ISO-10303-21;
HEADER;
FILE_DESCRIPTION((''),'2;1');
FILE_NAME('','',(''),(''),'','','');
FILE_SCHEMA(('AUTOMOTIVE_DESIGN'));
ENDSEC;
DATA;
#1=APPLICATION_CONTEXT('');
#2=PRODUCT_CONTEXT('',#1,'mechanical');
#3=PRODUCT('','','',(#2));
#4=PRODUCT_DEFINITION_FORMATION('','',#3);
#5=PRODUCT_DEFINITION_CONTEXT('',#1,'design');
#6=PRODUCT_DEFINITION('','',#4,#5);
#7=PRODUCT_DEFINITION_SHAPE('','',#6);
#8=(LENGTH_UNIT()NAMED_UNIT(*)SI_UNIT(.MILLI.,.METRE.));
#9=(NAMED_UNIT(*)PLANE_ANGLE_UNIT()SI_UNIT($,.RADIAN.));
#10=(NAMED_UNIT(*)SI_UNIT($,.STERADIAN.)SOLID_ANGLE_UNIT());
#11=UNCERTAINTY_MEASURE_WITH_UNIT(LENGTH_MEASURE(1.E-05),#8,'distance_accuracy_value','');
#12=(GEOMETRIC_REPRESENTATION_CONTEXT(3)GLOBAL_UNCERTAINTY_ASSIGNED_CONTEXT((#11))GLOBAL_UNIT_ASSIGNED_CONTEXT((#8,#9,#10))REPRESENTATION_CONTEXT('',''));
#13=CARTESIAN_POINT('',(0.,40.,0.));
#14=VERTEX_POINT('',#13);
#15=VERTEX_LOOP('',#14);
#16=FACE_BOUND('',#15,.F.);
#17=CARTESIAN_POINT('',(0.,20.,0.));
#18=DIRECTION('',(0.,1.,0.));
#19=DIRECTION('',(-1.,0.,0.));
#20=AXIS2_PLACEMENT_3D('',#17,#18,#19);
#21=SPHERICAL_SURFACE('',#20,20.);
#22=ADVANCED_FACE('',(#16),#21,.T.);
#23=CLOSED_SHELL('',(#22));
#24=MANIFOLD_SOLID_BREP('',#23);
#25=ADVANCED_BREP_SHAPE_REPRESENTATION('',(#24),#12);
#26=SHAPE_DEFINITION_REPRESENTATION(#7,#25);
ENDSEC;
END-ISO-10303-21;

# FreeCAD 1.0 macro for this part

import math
import FreeCAD as App
import Part
import Sketcher

V = App.Vector
Q = App.Units.Quantity

doc = App.newDocument("Part")
body = doc.addObject("PartDesign::Body", "Body")

# Sketch on XY plane
sketch1 = doc.addObject("Sketcher::SketchObject", "Sketch")
body.addObject(sketch1)
sketch1.AttachmentSupport = (doc.XY_Plane, [""])
sketch1.MapMode = "FlatFace"
sketch1.addGeometry([
    Part.LineSegment(V(0, 0, 0), V(0, 40, 0)),
    Part.ArcOfCircle(Part.Circle(V(0, 20, 0), V(0, 0, 1), 20), math.radians(90), math.radians(270)),
], False)
sketch1.addConstraint([
    Sketcher.Constraint("Coincident", 0, 1, 1, 2),
    Sketcher.Constraint("Coincident", 1, 1, 0, 2),
    Sketcher.Constraint("Vertical", 0),
    Sketcher.Constraint("Coincident", 0, 1, -1, 1),
    Sketcher.Constraint("PointOnObject", 1, 3, -2),
    Sketcher.Constraint("Radius", 1, Q("20 mm")),
])
revolution = doc.addObject("PartDesign::Revolution", "Revolution")
body.addObject(revolution)
revolution.Profile = sketch1
revolution.ReferenceAxis = (sketch1, ["V_Axis"])
revolution.Angle = 360

doc.recompute()
